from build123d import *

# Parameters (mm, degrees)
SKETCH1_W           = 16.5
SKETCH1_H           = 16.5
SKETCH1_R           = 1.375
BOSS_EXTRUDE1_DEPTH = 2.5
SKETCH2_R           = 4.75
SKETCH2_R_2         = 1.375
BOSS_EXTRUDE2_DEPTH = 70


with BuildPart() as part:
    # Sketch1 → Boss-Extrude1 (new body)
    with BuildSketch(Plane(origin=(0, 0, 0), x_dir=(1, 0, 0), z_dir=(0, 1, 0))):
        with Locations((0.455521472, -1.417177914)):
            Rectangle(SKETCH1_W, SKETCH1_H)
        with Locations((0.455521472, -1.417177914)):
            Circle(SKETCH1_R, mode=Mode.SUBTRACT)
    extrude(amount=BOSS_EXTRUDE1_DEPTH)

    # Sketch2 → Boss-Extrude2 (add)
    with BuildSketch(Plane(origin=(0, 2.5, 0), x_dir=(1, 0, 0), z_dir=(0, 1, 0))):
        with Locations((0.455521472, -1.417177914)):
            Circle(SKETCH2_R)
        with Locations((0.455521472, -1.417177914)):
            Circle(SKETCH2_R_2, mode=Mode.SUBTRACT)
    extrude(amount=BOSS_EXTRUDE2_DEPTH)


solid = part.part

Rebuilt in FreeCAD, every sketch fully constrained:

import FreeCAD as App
import Part
import Sketcher
from FreeCAD import Vector
Q = App.Units.Quantity


def add_polygon(sketch, points):
    """Adds a closed chain of lines whose ends are joined by coincident constraints."""
    first, n = sketch.GeometryCount, len(points)
    for a, b in zip(points, points[1:] + points[:1]):
        sketch.addGeometry(Part.LineSegment(App.Vector(*a, 0), App.Vector(*b, 0)), False)
    for i in range(n):
        sketch.addConstraint(Sketcher.Constraint("Coincident", first + i, 2, first + (i + 1) % n, 1))

doc = App.newDocument("Part")
body = doc.addObject("PartDesign::Body", "Body")

sketch1 = doc.addObject("Sketcher::SketchObject", "Sketch")
body.addObject(sketch1)
sketch1.AttachmentSupport = (doc.XZ_Plane, [""])
sketch1.MapMode = "FlatFace"
add_polygon(sketch1, [(-7.8, -6.8), (-7.8, 9.7), (8.7, 9.7), (8.7, -6.8)])
sketch1.addGeometry(Part.Circle(Vector(0.5, 1.4, 0), Vector(0, 0, 1), 1.4), False)
sketch1.addConstraint([
    Sketcher.Constraint("Vertical", 0),
    Sketcher.Constraint("Horizontal", 1),
    Sketcher.Constraint("Vertical", 2),
    Sketcher.Constraint("Horizontal", 3),
    Sketcher.Constraint("Equal", 3, 0),
    Sketcher.Constraint("Diameter", 4, Q("2.75 mm")),
    Sketcher.Constraint("DistanceX", 1, 1, 1, 2, Q("16.5 mm")),
    Sketcher.Constraint("DistanceX", 0, 2, 4, 3, Q("8.25 mm")),
    Sketcher.Constraint("DistanceY", 4, 3, 0, 2, Q("8.25 mm")),
    Sketcher.Constraint("DistanceX", -1, 1, 4, 3, Q("0.455521 mm")),
    Sketcher.Constraint("DistanceY", -1, 1, 4, 3, Q("1.417178 mm")),
])
pad1 = doc.addObject("PartDesign::Pad", "Pad")
body.addObject(pad1)
pad1.Profile = sketch1
pad1.Length = 2.5
pad1.Reversed = True

sketch2 = doc.addObject("Sketcher::SketchObject", "Sketch001")
body.addObject(sketch2)
sketch2.AttachmentSupport = (doc.XZ_Plane, [""])
sketch2.MapMode = "FlatFace"
sketch2.AttachmentOffset = App.Placement(Vector(0, 0, -2.5), App.Rotation())
sketch2.addGeometry([
    Part.Circle(Vector(0.5, 1.4, 0), Vector(0, 0, 1), 4.8),
    Part.Circle(Vector(0.5, 1.4, 0), Vector(0, 0, 1), 1.4),
], False)
sketch2.addConstraint([
    Sketcher.Constraint("Coincident", 1, 3, 0, 3),
    Sketcher.Constraint("Diameter", 0, Q("9.5 mm")),
    Sketcher.Constraint("Diameter", 1, Q("2.75 mm")),
    Sketcher.Constraint("DistanceX", -1, 1, 0, 3, Q("0.455521 mm")),
    Sketcher.Constraint("DistanceY", -1, 1, 0, 3, Q("1.417178 mm")),
])
pad2 = doc.addObject("PartDesign::Pad", "Pad001")
body.addObject(pad2)
pad2.Profile = sketch2
pad2.Length = 70
pad2.Reversed = True

doc.recompute()
